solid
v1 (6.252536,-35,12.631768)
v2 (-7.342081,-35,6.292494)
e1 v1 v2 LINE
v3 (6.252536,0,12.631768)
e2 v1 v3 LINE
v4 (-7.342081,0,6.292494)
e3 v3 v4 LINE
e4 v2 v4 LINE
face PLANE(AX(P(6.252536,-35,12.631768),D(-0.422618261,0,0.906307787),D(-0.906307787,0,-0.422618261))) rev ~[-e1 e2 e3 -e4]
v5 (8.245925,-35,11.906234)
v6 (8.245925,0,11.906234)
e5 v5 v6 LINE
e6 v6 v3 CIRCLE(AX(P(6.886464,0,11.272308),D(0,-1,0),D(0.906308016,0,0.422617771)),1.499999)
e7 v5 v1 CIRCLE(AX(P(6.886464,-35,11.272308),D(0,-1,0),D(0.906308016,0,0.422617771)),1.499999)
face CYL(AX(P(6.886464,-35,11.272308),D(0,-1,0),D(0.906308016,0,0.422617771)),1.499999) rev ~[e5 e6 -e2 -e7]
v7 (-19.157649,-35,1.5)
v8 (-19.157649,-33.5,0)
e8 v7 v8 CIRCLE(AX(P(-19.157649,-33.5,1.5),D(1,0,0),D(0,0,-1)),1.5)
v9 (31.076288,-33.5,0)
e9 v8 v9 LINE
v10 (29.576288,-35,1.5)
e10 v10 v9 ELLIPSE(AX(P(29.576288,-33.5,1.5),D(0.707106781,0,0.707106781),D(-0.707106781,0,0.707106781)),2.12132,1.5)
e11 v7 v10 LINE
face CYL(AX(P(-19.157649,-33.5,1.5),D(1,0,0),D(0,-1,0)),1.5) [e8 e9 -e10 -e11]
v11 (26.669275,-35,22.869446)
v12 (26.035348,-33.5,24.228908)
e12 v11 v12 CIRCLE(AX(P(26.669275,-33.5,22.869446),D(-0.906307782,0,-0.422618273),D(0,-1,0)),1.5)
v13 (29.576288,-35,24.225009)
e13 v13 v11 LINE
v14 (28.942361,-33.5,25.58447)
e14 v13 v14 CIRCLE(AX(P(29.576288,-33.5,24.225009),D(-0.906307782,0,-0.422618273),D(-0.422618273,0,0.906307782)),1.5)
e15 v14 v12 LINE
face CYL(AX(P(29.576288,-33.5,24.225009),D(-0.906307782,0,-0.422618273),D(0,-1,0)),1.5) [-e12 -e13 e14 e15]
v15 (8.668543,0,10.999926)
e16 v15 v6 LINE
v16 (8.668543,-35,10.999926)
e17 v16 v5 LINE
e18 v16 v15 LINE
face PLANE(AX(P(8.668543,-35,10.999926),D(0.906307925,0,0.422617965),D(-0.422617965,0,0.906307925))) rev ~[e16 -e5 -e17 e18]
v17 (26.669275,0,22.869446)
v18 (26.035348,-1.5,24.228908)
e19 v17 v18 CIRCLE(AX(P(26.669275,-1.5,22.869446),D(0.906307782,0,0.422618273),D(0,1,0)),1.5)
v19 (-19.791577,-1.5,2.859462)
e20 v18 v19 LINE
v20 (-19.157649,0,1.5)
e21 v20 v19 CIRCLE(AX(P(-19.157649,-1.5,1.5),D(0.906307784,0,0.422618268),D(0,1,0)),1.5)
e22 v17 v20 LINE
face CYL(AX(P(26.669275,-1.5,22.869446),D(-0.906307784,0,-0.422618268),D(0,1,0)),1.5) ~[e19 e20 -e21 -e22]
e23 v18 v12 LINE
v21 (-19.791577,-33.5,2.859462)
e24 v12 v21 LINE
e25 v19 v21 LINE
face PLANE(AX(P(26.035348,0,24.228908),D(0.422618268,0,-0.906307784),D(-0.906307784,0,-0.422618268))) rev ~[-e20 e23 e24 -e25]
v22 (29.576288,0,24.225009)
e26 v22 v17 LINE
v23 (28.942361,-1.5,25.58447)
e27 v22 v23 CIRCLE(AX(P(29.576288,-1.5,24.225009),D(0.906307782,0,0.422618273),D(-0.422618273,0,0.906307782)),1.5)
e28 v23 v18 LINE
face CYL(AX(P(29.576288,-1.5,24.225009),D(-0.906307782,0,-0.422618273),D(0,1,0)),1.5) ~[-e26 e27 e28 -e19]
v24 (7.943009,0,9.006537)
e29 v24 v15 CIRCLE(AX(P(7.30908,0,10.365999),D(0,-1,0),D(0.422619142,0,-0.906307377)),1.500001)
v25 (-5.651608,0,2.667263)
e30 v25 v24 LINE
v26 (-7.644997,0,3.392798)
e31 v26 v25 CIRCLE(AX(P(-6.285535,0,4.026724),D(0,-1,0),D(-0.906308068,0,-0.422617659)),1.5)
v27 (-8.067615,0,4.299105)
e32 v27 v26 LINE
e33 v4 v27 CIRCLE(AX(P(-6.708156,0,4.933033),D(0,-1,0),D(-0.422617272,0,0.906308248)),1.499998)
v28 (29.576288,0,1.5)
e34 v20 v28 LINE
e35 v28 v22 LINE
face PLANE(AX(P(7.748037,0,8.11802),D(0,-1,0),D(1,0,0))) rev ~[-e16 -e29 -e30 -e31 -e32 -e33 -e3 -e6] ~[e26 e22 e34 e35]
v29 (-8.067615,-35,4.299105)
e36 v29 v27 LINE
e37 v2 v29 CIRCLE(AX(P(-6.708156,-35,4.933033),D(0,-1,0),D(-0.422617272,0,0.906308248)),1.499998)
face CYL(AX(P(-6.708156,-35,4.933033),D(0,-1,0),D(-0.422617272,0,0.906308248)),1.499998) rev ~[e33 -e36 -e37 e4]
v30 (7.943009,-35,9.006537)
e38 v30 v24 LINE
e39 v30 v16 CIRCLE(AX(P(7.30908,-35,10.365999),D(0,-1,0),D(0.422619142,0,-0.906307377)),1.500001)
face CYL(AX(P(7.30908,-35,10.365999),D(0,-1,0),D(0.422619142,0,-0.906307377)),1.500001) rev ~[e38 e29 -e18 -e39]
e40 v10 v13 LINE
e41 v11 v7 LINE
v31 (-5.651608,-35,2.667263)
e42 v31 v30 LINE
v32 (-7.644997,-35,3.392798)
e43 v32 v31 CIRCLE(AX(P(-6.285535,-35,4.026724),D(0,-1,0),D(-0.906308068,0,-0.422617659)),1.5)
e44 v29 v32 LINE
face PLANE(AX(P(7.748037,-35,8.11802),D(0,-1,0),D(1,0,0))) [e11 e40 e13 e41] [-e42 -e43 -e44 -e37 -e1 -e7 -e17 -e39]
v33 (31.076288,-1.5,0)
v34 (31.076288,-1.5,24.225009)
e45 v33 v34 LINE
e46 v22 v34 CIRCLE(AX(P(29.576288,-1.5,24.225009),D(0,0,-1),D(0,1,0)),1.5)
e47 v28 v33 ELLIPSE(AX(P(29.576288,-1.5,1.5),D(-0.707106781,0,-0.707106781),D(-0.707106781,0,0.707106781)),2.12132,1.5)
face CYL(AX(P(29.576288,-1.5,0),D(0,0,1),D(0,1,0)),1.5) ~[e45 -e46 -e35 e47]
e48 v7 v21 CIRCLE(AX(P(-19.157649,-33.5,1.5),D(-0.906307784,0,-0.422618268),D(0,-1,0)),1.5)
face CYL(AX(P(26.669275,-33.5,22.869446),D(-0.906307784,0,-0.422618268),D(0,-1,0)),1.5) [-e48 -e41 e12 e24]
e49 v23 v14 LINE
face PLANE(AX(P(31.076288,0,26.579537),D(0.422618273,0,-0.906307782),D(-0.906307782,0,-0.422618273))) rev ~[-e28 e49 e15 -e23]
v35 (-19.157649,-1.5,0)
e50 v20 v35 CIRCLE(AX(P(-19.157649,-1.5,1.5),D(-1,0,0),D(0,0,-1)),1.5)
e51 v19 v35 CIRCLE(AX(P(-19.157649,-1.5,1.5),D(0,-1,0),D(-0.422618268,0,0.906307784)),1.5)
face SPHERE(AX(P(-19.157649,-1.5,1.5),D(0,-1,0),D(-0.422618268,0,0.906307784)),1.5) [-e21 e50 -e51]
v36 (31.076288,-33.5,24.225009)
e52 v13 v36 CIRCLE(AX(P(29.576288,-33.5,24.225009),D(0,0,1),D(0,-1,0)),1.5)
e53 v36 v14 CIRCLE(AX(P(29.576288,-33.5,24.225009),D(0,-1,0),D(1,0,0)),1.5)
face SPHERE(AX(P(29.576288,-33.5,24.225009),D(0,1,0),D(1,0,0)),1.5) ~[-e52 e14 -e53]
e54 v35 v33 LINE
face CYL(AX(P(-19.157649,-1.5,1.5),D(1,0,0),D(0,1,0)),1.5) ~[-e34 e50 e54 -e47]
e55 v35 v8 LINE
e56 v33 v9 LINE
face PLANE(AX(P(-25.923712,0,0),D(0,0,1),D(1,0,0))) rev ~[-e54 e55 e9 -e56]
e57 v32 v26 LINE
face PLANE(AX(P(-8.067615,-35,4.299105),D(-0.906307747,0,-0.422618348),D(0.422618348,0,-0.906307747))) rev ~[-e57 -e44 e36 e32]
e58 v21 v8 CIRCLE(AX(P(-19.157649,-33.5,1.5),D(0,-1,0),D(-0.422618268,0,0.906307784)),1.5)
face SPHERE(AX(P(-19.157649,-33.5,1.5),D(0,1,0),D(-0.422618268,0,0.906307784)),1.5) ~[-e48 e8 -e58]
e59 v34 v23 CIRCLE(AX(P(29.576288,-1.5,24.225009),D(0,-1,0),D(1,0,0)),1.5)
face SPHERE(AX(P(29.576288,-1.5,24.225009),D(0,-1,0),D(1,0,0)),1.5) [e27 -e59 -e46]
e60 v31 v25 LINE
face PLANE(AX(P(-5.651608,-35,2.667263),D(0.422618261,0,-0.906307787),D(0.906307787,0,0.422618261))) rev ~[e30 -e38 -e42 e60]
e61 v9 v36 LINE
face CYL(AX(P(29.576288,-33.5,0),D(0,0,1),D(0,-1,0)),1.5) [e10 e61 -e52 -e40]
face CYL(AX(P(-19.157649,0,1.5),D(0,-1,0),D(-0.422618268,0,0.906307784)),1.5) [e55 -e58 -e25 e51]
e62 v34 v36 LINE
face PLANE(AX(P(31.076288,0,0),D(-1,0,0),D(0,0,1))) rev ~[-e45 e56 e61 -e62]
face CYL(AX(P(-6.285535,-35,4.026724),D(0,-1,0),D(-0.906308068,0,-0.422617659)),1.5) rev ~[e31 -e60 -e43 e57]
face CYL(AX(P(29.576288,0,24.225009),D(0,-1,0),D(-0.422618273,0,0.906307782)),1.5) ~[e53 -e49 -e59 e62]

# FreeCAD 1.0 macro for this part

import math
import FreeCAD as App
import Part
import Sketcher

V = App.Vector
Q = App.Units.Quantity


def edges_at(feature, points):
    """Names of the edges that pass closest to the given points."""
    edges = feature.Shape.Edges
    near = lambda p: min(range(len(edges)), key=lambda i: edges[i].distToShape(Part.Vertex(*p))[0])
    return sorted({f"Edge{near(p) + 1}" for p in points})

doc = App.newDocument("Part")
body = doc.addObject("PartDesign::Body", "Body")

sketch1 = body.newObject("Sketcher::SketchObject", "Sketch")
sketch1.AttachmentSupport = (doc.getObject("XZ_Plane"), [""])
sketch1.MapMode = "FlatFace"
sketch1.addGeometry([
    Part.LineSegment(V(26.035348, 24.228908, 0), V(-25.923712, 0, 0)),
    Part.LineSegment(V(-25.923712, 0, 0), V(31.076288, 0, 0)),
    Part.LineSegment(V(31.076288, 0, 0), V(31.076288, 26.579537, 0)),
    Part.LineSegment(V(31.076288, 26.579537, 0), V(26.035348, 24.228908, 0)),
], False)
sketch1.addConstraint([
    Sketcher.Constraint("Coincident", 0, 2, 1, 1),
    Sketcher.Constraint("Coincident", 1, 2, 2, 1),
    Sketcher.Constraint("Coincident", 2, 2, 3, 1),
    Sketcher.Constraint("Coincident", 3, 2, 0, 1),
    Sketcher.Constraint("Horizontal", 1),
    Sketcher.Constraint("Vertical", 2),
    Sketcher.Constraint("PointOnObject", 0, 2, -1),
    Sketcher.Constraint("Parallel", 0, 3),
    Sketcher.Constraint("DistanceX", 1, 1, 1, 2, 57.0),
    Sketcher.Constraint("Angle", 0, Q("-155 deg")),
    Sketcher.Constraint("Distance", 0, 57.33048),
    Sketcher.Constraint("DistanceX", 0, 2, -1, 1, 25.923712),
])
pad1 = body.newObject("PartDesign::Pad", "Pad")
pad1.Profile = sketch1
pad1.Length = 35

sketch2 = body.newObject("Sketcher::SketchObject", "Sketch001")
sketch2.AttachmentSupport = (doc.getObject("XZ_Plane"), [""])
sketch2.MapMode = "FlatFace"
sketch2.AttachmentOffset = App.Placement(V(0, 0, 35), App.Rotation())
sketch2.addGeometry([
    Part.LineSegment(V(6.252536, 12.631768, 0), V(-7.342081, 6.292494, 0)),
    Part.ArcOfCircle(Part.Circle(V(-6.708156, 4.933033, 0), V(0, 0, 1), 1.499998), math.radians(114.999937), math.radians(205.000076)),
    Part.LineSegment(V(-8.067615, 4.299105, 0), V(-7.644997, 3.392798, 0)),
    Part.ArcOfCircle(Part.Circle(V(-6.285535, 4.026724, 0), V(0, 0, 1), 1.5), math.radians(-155.000038), math.radians(-64.999999)),
    Part.LineSegment(V(-5.651608, 2.667263, 0), V(7.943009, 9.006537, 0)),
    Part.ArcOfCircle(Part.Circle(V(7.30908, 10.365999, 0), V(0, 0, 1), 1.500001), math.radians(-64.999944), math.radians(24.999958)),
    Part.LineSegment(V(8.668543, 10.999926, 0), V(8.245925, 11.906234, 0)),
    Part.ArcOfCircle(Part.Circle(V(6.886464, 11.272308, 0), V(0, 0, 1), 1.499999), math.radians(24.999969), math.radians(115.000044)),
], False)
sketch2.addConstraint([
    Sketcher.Constraint("Tangent", 0, 2, 1, 1),
    Sketcher.Constraint("Tangent", 1, 2, 2, 1),
    Sketcher.Constraint("Tangent", 2, 2, 3, 1),
    Sketcher.Constraint("Tangent", 3, 2, 4, 1),
    Sketcher.Constraint("Tangent", 4, 2, 5, 1),
    Sketcher.Constraint("Tangent", 5, 2, 6, 1),
    Sketcher.Constraint("Tangent", 6, 2, 7, 1),
    Sketcher.Constraint("Tangent", 7, 2, 0, 1),
    Sketcher.Constraint("Equal", 1, 3),
    Sketcher.Constraint("Equal", 3, 5),
    Sketcher.Constraint("Equal", 3, 7),
    Sketcher.Constraint("Perpendicular", 0, 2),
    Sketcher.Constraint("Perpendicular", 2, 4),
    Sketcher.Constraint("Perpendicular", 4, 6),
    Sketcher.Constraint("Radius", 1, 1.499998),
    Sketcher.Constraint("Angle", 0, Q("-155 deg")),
    Sketcher.Constraint("Distance", 0, 15.0),
    Sketcher.Constraint("Distance", 2, 0.999999),
    Sketcher.Constraint("DistanceY", -1, 1, 5, 3, 10.365999),
    Sketcher.Constraint("DistanceX", -1, 1, 5, 3, 7.30908),
])
pocket1 = body.newObject("PartDesign::Pocket", "Pocket")
pocket1.Profile = sketch2
pocket1.Type = "ThroughAll"
doc.recompute()

fillet = body.newObject("PartDesign::Fillet", "Fillet")
fillet.Base = (pocket1, edges_at(pocket1, [(-25.924, -17.5, 0), (31.076, -17.5, 26.58)]))
fillet.Radius = 1.5
doc.recompute()

fillet2 = body.newObject("PartDesign::Fillet", "Fillet001")
fillet2.Base = (fillet, edges_at(fillet, [(31.076, -35, 12.113), (31.076, 0, 12.113)]))
fillet2.Radius = 1.5

doc.recompute()
